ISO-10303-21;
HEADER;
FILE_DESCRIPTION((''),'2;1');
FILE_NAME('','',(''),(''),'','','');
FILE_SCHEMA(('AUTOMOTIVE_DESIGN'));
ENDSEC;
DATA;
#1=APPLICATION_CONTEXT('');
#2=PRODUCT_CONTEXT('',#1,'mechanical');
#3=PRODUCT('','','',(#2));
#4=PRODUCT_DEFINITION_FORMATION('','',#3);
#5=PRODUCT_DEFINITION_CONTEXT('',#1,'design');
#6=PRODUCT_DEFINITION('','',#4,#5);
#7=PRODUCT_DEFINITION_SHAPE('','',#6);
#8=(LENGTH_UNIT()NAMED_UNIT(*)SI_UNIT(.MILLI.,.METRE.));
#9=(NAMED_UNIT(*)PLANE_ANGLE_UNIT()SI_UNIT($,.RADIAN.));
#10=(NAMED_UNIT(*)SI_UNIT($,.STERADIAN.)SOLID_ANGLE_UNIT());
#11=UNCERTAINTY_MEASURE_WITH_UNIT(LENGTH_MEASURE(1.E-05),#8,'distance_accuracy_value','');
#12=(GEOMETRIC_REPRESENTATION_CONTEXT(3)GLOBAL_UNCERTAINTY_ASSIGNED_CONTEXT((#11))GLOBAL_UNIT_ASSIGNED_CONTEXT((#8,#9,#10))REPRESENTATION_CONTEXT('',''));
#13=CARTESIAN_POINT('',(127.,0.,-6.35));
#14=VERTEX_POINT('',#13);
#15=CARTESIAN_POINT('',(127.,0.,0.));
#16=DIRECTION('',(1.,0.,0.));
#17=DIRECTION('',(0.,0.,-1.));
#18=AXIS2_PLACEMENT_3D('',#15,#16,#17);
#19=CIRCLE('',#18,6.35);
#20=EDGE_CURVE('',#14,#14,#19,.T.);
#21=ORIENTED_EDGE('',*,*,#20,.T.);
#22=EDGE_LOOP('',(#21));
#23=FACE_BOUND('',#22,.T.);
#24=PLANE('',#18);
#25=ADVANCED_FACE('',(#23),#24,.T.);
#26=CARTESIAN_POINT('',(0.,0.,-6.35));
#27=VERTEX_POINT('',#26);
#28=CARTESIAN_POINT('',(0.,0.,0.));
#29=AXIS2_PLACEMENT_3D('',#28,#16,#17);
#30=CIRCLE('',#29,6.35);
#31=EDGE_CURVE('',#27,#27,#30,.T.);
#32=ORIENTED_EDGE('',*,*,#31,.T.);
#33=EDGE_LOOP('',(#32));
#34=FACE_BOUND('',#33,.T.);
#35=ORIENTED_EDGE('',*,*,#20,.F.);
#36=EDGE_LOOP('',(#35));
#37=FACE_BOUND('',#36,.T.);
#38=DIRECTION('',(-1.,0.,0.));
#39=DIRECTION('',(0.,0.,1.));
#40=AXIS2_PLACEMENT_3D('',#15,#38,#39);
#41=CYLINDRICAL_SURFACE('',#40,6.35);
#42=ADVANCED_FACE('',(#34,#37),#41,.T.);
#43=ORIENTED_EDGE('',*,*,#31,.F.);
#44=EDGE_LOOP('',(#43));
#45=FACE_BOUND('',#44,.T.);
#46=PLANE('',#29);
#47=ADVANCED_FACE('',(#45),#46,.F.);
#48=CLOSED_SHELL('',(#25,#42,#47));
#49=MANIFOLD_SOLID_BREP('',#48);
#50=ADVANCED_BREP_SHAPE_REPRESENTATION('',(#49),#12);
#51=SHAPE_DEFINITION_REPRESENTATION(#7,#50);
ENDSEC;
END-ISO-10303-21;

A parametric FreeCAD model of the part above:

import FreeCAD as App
import Part
import Sketcher

V = App.Vector
Q = App.Units.Quantity

doc = App.newDocument("Part")
body = doc.addObject("PartDesign::Body", "Body")

sketch1 = body.newObject("Sketcher::SketchObject", "Sketch")
sketch1.AttachmentSupport = (doc.getObject("YZ_Plane"), [""])
sketch1.MapMode = "FlatFace"
sketch1.addGeometry(Part.Circle(V(0, 0, 0), V(0, 0, 1), 6), False)
sketch1.addConstraint([
    Sketcher.Constraint("Coincident", 0, 3, -1, 1),
    Sketcher.Constraint("Diameter", 0, Q("0.5 in")),
])
pad1 = body.newObject("PartDesign::Pad", "Pad")
pad1.Profile = sketch1
pad1.Length = Q("5 in")

doc.recompute()
